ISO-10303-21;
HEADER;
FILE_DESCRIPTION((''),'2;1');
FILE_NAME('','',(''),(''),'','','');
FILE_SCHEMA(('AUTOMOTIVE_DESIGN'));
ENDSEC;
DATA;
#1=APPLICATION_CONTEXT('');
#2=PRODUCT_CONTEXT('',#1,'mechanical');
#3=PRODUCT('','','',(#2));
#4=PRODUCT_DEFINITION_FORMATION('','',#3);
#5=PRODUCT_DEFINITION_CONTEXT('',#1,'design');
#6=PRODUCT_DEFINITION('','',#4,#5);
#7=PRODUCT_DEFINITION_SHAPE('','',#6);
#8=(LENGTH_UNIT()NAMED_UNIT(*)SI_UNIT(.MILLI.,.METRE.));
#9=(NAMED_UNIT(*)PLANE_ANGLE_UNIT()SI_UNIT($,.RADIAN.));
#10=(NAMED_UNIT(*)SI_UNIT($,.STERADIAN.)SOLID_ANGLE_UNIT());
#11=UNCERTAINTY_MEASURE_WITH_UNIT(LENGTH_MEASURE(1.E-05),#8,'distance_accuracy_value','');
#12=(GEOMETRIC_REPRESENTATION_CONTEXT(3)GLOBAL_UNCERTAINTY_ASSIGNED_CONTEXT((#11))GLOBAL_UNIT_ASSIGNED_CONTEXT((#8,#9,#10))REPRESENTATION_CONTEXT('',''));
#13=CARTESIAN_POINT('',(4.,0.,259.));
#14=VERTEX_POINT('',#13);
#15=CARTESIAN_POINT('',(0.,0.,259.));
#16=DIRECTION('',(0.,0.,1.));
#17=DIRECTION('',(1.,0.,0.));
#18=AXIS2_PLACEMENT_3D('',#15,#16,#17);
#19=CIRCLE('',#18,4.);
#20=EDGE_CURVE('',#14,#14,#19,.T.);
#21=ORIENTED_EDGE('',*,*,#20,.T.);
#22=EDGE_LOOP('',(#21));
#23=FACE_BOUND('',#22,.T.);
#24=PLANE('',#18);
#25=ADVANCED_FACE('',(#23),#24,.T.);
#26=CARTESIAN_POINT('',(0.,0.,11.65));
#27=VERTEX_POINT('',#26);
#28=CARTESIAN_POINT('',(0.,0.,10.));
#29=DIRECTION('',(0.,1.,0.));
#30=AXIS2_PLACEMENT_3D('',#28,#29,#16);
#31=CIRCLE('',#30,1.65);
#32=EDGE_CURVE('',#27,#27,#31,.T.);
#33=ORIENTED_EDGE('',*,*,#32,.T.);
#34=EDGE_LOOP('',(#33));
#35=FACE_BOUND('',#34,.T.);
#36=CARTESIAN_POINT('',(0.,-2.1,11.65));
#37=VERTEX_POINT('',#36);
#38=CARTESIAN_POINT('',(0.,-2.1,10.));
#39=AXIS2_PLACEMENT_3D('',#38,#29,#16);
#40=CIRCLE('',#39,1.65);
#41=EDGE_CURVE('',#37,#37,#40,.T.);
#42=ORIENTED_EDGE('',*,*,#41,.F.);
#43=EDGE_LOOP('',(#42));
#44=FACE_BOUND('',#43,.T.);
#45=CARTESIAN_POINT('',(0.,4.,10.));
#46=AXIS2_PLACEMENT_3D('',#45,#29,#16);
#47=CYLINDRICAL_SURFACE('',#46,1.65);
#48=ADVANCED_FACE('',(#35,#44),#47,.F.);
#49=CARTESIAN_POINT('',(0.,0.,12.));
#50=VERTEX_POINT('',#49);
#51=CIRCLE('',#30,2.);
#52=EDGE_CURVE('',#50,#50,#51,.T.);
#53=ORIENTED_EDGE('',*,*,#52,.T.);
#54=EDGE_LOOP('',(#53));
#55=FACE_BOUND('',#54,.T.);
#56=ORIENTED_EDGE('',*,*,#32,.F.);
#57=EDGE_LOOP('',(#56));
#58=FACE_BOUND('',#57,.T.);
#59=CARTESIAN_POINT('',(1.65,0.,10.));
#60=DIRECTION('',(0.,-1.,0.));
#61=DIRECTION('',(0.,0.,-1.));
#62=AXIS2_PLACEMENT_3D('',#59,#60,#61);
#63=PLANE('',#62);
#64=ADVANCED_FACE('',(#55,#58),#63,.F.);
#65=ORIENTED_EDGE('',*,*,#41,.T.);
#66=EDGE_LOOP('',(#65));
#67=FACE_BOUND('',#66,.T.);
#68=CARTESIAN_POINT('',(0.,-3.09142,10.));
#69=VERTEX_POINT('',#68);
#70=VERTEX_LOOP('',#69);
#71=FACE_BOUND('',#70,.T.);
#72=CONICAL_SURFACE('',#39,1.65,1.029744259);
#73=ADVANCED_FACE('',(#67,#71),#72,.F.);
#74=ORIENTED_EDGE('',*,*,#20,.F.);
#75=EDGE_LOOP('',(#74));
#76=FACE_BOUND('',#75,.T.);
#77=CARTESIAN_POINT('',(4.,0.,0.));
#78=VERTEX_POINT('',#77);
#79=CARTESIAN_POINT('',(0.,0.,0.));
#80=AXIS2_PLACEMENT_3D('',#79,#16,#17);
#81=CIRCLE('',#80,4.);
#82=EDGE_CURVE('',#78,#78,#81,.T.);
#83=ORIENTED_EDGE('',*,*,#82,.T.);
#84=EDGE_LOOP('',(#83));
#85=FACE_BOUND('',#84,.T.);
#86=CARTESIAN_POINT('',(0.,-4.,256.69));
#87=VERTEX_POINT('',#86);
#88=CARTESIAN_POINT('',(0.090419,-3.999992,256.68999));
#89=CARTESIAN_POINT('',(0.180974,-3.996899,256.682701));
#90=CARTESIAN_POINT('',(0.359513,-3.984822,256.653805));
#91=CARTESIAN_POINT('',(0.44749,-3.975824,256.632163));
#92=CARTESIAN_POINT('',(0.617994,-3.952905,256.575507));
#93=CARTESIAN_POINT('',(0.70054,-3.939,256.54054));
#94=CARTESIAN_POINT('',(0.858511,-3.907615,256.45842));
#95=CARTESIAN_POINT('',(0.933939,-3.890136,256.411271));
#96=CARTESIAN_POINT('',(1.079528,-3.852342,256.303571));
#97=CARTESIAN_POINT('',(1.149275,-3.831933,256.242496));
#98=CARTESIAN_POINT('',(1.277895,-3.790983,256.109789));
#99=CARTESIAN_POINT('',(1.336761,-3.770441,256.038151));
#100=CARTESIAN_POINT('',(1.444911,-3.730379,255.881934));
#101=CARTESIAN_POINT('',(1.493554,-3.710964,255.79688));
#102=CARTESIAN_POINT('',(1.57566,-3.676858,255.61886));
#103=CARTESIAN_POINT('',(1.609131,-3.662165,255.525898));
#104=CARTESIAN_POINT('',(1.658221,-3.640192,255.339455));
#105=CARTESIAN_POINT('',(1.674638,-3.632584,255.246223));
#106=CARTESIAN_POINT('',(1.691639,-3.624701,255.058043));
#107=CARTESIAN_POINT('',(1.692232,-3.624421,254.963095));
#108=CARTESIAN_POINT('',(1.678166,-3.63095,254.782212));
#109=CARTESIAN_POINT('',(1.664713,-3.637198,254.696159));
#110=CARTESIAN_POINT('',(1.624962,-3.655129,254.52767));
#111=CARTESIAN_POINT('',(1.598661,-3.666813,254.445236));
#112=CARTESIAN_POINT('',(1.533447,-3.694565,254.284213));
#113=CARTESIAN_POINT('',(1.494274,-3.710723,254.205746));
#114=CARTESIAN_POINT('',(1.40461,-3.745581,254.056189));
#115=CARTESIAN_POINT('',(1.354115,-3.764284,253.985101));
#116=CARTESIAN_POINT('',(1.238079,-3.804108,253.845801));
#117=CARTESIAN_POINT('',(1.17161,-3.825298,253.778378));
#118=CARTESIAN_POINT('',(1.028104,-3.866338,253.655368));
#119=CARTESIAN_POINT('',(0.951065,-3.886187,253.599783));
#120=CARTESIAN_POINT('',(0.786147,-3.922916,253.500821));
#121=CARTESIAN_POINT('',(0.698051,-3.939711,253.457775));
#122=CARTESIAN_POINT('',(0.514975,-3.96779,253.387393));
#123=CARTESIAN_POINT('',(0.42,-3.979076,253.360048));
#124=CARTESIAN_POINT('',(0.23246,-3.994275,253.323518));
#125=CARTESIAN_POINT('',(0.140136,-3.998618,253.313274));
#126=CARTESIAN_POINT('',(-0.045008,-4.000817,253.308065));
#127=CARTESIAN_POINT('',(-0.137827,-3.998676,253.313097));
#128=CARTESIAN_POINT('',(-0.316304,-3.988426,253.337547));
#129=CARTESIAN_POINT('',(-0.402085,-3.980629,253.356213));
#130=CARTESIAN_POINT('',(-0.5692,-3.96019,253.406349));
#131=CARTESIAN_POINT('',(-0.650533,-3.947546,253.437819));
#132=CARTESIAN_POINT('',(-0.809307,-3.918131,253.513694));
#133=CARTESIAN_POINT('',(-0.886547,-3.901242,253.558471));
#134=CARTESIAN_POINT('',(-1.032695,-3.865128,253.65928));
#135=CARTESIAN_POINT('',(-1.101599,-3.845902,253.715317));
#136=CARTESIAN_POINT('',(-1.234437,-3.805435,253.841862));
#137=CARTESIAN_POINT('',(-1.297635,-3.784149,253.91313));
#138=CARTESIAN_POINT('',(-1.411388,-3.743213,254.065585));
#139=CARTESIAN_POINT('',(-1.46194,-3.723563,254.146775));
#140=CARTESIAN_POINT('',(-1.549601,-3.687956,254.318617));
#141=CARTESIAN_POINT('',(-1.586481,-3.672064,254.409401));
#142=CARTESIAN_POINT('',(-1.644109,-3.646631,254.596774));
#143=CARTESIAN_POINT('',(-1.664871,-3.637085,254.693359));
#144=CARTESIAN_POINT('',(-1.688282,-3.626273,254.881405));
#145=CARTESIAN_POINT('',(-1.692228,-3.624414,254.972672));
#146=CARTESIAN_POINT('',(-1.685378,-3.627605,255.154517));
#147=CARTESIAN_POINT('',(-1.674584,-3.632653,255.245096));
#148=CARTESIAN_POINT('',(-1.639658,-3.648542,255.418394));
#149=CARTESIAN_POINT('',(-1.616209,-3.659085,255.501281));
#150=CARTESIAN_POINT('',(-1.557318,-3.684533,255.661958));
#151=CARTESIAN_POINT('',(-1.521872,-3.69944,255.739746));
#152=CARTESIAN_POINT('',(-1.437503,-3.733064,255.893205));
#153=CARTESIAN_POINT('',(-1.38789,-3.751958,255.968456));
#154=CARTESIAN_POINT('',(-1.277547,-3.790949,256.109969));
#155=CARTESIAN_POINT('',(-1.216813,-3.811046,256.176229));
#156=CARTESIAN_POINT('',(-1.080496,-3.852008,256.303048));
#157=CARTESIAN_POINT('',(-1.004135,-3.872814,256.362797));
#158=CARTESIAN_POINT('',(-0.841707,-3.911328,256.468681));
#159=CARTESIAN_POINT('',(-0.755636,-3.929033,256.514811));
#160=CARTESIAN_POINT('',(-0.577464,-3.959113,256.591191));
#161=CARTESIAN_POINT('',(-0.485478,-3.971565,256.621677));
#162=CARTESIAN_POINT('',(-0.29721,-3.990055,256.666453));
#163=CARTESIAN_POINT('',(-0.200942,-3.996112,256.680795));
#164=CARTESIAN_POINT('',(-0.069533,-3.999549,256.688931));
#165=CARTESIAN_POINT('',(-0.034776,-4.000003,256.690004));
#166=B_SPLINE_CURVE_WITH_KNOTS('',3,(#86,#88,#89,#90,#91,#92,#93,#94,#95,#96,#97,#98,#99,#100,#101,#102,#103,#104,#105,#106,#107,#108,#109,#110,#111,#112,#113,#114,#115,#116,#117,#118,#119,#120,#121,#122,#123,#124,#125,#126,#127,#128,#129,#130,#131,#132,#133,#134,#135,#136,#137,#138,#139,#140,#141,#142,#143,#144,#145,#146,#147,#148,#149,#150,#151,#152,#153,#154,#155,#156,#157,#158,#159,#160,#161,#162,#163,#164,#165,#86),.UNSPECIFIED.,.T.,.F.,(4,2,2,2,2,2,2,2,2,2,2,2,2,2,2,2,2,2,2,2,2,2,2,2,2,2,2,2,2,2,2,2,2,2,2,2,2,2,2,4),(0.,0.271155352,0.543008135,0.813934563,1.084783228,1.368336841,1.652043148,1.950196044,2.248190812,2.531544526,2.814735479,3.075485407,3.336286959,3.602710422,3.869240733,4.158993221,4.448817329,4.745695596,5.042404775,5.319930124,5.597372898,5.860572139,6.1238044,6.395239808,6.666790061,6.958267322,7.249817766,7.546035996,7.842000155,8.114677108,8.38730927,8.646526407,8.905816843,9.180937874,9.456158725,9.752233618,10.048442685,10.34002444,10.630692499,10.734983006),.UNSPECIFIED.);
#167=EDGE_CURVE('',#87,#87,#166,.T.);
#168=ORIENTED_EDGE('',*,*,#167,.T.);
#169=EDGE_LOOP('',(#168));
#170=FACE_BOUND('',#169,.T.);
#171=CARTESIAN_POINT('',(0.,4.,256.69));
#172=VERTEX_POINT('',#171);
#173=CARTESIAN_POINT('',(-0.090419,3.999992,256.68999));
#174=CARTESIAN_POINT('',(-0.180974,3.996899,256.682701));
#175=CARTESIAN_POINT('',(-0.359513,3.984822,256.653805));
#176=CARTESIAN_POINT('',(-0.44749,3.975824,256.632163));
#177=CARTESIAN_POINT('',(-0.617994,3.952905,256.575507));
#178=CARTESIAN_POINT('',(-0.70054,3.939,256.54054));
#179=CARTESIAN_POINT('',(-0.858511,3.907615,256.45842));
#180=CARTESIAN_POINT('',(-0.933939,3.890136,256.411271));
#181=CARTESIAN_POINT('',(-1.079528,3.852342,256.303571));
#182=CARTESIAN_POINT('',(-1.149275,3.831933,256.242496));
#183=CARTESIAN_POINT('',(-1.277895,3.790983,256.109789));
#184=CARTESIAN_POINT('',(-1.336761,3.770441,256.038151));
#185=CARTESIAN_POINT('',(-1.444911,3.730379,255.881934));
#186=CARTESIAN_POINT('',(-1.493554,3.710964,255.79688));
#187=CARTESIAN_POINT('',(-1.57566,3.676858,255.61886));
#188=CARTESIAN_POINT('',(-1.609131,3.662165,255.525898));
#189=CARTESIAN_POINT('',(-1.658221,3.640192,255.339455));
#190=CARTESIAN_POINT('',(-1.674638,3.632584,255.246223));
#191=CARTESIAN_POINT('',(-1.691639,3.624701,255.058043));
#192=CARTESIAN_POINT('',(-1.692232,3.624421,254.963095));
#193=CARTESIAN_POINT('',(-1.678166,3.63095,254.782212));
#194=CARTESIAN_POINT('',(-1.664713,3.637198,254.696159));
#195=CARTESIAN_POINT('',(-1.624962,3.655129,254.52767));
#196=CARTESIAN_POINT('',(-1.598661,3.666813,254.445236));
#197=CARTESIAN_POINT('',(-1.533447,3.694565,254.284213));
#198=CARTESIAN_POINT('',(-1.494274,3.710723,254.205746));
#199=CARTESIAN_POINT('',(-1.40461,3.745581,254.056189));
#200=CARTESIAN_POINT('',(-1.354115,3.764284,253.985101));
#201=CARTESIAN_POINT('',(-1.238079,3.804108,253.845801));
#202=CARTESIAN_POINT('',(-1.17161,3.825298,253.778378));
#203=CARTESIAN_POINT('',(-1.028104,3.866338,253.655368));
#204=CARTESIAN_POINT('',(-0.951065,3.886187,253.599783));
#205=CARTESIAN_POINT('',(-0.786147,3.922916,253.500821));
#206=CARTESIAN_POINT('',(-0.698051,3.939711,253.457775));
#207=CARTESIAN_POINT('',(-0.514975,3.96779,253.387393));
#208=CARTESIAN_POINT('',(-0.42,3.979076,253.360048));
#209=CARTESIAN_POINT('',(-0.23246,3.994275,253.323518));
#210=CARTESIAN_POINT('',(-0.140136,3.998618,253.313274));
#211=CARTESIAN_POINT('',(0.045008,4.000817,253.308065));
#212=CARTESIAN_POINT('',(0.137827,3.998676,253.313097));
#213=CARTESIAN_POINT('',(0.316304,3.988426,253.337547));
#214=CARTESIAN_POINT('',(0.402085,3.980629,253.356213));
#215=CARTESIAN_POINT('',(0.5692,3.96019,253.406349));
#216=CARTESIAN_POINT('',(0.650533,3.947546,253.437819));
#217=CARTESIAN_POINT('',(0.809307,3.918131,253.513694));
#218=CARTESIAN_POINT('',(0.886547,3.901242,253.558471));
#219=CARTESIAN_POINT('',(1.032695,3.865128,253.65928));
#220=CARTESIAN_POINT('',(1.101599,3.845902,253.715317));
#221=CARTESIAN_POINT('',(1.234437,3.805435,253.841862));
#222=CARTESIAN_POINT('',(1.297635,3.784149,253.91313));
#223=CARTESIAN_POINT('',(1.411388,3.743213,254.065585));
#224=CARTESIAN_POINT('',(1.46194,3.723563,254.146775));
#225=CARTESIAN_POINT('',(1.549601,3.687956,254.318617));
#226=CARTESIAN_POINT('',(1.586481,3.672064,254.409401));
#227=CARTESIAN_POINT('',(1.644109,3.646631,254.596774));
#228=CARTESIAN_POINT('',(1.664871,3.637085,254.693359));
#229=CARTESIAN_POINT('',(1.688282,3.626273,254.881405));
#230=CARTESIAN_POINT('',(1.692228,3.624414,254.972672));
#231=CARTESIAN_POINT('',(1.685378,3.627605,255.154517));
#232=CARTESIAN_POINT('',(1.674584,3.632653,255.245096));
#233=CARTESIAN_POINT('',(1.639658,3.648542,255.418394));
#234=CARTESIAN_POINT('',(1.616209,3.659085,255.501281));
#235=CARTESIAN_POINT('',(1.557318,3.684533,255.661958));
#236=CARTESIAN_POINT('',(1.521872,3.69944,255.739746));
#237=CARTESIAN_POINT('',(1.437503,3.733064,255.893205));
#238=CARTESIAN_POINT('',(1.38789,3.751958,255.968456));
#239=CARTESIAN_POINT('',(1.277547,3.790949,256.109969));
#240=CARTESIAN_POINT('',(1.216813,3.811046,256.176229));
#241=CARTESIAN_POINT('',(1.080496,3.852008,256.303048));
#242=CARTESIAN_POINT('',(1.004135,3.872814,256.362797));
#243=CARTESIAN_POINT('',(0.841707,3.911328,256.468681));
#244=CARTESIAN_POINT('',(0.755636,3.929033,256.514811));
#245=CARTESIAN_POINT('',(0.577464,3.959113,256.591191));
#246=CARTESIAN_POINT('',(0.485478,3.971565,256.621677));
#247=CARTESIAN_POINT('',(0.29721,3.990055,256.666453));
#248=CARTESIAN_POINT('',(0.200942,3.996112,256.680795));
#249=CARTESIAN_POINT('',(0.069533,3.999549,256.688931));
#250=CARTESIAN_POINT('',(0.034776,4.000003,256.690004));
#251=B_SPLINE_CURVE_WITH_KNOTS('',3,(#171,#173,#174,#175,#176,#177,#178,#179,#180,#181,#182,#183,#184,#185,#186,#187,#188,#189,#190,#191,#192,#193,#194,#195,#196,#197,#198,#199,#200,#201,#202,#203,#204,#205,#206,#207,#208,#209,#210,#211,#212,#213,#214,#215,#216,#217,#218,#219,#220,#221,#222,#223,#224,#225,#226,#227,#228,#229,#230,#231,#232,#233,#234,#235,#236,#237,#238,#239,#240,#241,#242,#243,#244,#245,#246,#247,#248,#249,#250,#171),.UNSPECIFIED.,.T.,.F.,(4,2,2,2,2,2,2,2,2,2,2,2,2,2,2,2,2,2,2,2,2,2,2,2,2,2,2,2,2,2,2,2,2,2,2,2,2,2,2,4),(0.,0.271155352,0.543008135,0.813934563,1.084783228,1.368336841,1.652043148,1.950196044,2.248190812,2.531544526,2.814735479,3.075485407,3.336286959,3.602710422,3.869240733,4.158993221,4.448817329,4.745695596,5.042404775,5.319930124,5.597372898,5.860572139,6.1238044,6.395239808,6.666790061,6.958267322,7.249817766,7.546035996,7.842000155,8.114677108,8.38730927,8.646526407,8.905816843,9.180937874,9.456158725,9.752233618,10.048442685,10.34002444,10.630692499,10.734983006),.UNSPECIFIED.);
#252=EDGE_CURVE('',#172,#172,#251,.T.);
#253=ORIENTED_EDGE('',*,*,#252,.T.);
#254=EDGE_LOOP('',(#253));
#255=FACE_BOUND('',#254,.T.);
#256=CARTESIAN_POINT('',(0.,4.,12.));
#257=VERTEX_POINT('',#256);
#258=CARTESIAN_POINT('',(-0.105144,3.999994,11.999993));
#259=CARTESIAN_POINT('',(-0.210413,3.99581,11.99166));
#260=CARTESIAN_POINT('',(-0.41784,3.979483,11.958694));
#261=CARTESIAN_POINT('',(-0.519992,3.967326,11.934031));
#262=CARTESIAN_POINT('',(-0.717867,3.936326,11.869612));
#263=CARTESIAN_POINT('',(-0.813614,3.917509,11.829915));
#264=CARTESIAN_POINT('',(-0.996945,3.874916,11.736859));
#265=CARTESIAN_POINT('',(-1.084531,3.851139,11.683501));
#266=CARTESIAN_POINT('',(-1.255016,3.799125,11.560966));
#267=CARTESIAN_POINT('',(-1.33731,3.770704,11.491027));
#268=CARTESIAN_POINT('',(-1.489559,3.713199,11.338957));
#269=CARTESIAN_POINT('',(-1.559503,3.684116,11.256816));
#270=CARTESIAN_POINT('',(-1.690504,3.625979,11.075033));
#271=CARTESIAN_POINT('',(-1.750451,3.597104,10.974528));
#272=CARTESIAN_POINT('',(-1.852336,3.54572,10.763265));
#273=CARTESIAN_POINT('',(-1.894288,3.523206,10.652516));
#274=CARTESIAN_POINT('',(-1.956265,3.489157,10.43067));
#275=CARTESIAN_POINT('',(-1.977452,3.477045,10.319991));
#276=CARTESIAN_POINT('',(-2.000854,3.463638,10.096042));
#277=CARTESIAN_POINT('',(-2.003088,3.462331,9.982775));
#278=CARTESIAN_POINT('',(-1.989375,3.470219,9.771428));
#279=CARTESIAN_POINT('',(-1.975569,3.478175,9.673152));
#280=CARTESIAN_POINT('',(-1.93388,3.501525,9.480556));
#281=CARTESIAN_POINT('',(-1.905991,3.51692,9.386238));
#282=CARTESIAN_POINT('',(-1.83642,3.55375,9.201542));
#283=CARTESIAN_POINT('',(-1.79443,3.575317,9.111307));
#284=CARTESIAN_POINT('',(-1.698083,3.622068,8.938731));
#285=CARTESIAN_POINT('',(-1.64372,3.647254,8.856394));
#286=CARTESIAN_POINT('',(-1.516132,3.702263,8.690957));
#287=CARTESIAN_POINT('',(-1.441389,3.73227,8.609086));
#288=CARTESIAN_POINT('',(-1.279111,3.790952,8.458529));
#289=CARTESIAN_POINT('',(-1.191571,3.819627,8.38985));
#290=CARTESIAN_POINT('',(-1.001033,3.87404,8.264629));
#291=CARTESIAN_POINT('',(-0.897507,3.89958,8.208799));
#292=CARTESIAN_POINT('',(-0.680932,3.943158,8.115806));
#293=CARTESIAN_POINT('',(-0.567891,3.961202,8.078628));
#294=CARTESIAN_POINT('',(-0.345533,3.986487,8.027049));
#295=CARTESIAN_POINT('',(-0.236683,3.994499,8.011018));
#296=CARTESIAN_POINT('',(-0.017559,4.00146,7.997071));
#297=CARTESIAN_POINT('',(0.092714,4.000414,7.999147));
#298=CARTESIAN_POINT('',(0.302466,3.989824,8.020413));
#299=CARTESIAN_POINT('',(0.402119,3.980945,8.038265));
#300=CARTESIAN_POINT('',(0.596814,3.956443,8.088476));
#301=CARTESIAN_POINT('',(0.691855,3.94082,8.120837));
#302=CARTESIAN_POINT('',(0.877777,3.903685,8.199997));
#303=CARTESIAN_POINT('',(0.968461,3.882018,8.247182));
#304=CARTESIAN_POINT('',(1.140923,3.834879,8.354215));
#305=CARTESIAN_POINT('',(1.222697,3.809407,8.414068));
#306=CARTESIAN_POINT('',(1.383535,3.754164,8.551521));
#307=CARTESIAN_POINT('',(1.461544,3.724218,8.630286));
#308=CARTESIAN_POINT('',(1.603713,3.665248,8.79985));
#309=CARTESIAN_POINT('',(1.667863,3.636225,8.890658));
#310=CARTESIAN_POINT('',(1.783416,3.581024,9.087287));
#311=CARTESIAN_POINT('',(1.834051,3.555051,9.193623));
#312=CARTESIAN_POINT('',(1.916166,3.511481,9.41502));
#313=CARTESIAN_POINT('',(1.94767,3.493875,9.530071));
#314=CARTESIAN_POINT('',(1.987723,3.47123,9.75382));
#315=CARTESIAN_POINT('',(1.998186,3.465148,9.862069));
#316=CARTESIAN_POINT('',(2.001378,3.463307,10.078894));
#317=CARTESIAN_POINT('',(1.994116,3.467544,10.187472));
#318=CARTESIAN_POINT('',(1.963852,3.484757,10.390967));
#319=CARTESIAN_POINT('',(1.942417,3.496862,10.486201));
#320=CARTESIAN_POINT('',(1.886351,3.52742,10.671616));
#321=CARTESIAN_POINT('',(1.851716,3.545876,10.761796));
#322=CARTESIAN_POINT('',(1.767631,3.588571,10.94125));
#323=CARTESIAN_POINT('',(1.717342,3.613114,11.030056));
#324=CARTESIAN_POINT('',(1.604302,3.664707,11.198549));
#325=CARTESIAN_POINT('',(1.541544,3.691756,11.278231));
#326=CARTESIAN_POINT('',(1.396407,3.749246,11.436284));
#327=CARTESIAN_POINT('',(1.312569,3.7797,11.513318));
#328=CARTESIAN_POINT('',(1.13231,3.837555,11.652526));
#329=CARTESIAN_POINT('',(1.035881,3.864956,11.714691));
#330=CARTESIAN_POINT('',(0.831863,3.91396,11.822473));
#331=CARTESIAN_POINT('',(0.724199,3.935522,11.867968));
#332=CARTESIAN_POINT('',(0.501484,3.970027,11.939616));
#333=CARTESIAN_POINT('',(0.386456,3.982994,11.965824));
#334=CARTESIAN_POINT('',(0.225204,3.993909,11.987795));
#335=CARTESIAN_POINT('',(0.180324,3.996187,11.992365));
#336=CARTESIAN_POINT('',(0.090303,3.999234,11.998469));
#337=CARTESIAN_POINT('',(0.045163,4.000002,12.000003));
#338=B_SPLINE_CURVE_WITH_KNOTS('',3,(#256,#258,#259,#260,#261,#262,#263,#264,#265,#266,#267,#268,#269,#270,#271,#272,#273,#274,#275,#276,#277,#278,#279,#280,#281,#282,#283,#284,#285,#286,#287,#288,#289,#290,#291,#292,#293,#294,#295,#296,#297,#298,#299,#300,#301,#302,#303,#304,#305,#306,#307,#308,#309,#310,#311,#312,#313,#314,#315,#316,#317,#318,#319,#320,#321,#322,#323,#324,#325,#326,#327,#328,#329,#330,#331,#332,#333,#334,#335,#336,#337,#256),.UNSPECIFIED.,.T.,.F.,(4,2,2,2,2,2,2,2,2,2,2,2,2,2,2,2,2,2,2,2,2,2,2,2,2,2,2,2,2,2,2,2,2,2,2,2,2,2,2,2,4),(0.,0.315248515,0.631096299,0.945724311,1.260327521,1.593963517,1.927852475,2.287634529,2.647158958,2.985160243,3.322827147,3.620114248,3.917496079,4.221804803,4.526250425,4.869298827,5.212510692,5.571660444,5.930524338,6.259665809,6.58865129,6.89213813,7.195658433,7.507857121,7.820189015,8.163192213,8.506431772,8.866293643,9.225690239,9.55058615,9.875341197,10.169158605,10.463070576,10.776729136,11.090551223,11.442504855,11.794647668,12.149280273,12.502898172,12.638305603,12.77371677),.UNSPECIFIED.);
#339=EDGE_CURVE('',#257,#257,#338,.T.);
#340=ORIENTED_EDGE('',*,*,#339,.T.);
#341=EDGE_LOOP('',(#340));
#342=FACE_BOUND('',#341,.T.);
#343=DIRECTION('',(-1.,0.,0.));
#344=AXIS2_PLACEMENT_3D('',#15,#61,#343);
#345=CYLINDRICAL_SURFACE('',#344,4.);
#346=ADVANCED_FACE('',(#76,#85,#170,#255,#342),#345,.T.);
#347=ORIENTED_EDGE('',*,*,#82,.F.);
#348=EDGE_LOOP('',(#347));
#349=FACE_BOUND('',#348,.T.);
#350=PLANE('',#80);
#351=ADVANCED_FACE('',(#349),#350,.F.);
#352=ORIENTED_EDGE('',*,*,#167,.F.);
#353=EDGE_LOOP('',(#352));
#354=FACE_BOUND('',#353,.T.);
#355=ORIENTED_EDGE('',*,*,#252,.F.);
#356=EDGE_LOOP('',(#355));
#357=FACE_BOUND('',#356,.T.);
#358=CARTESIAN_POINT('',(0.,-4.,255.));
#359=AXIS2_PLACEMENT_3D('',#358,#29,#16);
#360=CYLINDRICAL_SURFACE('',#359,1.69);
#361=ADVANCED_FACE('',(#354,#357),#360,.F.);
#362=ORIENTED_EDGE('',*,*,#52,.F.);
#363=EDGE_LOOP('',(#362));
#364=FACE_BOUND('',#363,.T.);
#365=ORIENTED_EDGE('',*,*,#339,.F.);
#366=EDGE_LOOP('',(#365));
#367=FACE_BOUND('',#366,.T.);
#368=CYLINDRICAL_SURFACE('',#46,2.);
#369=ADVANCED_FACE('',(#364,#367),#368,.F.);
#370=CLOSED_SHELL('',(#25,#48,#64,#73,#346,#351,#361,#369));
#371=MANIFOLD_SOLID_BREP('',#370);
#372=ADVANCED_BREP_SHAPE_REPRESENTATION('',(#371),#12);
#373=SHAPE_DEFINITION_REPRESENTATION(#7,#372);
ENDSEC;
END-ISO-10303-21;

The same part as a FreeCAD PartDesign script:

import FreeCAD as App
import Part
import Sketcher
from FreeCAD import Vector

doc = App.newDocument("Part")
body = doc.addObject("PartDesign::Body", "Body")

sketch1 = body.newObject("Sketcher::SketchObject", "Sketch")
sketch1.AttachmentSupport = (doc.getObject("XY_Plane"), [""])
sketch1.MapMode = "FlatFace"
sketch1.addGeometry(Part.Circle(Vector(0, 0, 0), Vector(0, 0, 1), 4), False)
sketch1.addConstraint(Sketcher.Constraint("Coincident", 0, 3, -1, 1))
sketch1.addConstraint(Sketcher.Constraint("Diameter", 0, 8.0))
pad1 = body.newObject("PartDesign::Pad", "Pad")
pad1.Profile = sketch1
pad1.Length = 259

sketch2 = body.newObject("Sketcher::SketchObject", "Sketch001")
sketch2.AttachmentSupport = (doc.getObject("XZ_Plane"), [""])
sketch2.MapMode = "FlatFace"
sketch2.AttachmentOffset = App.Placement(Vector(0, 0, -4), App.Rotation())
sketch2.addGeometry(Part.Circle(Vector(0, 10, 0), Vector(0, 0, 1), 1.65), False)
sketch2.addConstraint(Sketcher.Constraint("PointOnObject", 0, 3, -2))
sketch2.addConstraint(Sketcher.Constraint("Diameter", 0, 3.3))
sketch2.addConstraint(Sketcher.Constraint("DistanceY", -1, 1, 0, 3, 10.0))
doc.recompute()
hole = body.newObject("PartDesign::Hole", "Hole")
hole.Profile = sketch2
hole.ThreadType = "None"
hole.Diameter = 3.3
hole.DepthType = "Dimension"
hole.Depth = 6.1
hole.DrillPoint = "Angled"
hole.DrillPointAngle = 118
hole.HoleCutType = "Counterbore"
hole.HoleCutDiameter = 4
hole.HoleCutDepth = 4
hole.Reversed = True

sketch3 = body.newObject("Sketcher::SketchObject", "Sketch002")
sketch3.AttachmentSupport = (doc.getObject("XZ_Plane"), [""])
sketch3.MapMode = "FlatFace"
sketch3.AttachmentOffset = App.Placement(Vector(0, 0, -4), App.Rotation())
sketch3.addGeometry(Part.Circle(Vector(0, 255, 0), Vector(0, 0, 1), 1.69), False)
sketch3.addConstraint(Sketcher.Constraint("PointOnObject", 0, 3, -2))
sketch3.addConstraint(Sketcher.Constraint("Diameter", 0, 3.38))
sketch3.addConstraint(Sketcher.Constraint("DistanceY", -1, 1, 0, 3, 255.0))
pocket1 = body.newObject("PartDesign::Pocket", "Pocket")
pocket1.Profile = sketch3
pocket1.Type = "ThroughAll"
pocket1.Reversed = True

doc.recompute()
